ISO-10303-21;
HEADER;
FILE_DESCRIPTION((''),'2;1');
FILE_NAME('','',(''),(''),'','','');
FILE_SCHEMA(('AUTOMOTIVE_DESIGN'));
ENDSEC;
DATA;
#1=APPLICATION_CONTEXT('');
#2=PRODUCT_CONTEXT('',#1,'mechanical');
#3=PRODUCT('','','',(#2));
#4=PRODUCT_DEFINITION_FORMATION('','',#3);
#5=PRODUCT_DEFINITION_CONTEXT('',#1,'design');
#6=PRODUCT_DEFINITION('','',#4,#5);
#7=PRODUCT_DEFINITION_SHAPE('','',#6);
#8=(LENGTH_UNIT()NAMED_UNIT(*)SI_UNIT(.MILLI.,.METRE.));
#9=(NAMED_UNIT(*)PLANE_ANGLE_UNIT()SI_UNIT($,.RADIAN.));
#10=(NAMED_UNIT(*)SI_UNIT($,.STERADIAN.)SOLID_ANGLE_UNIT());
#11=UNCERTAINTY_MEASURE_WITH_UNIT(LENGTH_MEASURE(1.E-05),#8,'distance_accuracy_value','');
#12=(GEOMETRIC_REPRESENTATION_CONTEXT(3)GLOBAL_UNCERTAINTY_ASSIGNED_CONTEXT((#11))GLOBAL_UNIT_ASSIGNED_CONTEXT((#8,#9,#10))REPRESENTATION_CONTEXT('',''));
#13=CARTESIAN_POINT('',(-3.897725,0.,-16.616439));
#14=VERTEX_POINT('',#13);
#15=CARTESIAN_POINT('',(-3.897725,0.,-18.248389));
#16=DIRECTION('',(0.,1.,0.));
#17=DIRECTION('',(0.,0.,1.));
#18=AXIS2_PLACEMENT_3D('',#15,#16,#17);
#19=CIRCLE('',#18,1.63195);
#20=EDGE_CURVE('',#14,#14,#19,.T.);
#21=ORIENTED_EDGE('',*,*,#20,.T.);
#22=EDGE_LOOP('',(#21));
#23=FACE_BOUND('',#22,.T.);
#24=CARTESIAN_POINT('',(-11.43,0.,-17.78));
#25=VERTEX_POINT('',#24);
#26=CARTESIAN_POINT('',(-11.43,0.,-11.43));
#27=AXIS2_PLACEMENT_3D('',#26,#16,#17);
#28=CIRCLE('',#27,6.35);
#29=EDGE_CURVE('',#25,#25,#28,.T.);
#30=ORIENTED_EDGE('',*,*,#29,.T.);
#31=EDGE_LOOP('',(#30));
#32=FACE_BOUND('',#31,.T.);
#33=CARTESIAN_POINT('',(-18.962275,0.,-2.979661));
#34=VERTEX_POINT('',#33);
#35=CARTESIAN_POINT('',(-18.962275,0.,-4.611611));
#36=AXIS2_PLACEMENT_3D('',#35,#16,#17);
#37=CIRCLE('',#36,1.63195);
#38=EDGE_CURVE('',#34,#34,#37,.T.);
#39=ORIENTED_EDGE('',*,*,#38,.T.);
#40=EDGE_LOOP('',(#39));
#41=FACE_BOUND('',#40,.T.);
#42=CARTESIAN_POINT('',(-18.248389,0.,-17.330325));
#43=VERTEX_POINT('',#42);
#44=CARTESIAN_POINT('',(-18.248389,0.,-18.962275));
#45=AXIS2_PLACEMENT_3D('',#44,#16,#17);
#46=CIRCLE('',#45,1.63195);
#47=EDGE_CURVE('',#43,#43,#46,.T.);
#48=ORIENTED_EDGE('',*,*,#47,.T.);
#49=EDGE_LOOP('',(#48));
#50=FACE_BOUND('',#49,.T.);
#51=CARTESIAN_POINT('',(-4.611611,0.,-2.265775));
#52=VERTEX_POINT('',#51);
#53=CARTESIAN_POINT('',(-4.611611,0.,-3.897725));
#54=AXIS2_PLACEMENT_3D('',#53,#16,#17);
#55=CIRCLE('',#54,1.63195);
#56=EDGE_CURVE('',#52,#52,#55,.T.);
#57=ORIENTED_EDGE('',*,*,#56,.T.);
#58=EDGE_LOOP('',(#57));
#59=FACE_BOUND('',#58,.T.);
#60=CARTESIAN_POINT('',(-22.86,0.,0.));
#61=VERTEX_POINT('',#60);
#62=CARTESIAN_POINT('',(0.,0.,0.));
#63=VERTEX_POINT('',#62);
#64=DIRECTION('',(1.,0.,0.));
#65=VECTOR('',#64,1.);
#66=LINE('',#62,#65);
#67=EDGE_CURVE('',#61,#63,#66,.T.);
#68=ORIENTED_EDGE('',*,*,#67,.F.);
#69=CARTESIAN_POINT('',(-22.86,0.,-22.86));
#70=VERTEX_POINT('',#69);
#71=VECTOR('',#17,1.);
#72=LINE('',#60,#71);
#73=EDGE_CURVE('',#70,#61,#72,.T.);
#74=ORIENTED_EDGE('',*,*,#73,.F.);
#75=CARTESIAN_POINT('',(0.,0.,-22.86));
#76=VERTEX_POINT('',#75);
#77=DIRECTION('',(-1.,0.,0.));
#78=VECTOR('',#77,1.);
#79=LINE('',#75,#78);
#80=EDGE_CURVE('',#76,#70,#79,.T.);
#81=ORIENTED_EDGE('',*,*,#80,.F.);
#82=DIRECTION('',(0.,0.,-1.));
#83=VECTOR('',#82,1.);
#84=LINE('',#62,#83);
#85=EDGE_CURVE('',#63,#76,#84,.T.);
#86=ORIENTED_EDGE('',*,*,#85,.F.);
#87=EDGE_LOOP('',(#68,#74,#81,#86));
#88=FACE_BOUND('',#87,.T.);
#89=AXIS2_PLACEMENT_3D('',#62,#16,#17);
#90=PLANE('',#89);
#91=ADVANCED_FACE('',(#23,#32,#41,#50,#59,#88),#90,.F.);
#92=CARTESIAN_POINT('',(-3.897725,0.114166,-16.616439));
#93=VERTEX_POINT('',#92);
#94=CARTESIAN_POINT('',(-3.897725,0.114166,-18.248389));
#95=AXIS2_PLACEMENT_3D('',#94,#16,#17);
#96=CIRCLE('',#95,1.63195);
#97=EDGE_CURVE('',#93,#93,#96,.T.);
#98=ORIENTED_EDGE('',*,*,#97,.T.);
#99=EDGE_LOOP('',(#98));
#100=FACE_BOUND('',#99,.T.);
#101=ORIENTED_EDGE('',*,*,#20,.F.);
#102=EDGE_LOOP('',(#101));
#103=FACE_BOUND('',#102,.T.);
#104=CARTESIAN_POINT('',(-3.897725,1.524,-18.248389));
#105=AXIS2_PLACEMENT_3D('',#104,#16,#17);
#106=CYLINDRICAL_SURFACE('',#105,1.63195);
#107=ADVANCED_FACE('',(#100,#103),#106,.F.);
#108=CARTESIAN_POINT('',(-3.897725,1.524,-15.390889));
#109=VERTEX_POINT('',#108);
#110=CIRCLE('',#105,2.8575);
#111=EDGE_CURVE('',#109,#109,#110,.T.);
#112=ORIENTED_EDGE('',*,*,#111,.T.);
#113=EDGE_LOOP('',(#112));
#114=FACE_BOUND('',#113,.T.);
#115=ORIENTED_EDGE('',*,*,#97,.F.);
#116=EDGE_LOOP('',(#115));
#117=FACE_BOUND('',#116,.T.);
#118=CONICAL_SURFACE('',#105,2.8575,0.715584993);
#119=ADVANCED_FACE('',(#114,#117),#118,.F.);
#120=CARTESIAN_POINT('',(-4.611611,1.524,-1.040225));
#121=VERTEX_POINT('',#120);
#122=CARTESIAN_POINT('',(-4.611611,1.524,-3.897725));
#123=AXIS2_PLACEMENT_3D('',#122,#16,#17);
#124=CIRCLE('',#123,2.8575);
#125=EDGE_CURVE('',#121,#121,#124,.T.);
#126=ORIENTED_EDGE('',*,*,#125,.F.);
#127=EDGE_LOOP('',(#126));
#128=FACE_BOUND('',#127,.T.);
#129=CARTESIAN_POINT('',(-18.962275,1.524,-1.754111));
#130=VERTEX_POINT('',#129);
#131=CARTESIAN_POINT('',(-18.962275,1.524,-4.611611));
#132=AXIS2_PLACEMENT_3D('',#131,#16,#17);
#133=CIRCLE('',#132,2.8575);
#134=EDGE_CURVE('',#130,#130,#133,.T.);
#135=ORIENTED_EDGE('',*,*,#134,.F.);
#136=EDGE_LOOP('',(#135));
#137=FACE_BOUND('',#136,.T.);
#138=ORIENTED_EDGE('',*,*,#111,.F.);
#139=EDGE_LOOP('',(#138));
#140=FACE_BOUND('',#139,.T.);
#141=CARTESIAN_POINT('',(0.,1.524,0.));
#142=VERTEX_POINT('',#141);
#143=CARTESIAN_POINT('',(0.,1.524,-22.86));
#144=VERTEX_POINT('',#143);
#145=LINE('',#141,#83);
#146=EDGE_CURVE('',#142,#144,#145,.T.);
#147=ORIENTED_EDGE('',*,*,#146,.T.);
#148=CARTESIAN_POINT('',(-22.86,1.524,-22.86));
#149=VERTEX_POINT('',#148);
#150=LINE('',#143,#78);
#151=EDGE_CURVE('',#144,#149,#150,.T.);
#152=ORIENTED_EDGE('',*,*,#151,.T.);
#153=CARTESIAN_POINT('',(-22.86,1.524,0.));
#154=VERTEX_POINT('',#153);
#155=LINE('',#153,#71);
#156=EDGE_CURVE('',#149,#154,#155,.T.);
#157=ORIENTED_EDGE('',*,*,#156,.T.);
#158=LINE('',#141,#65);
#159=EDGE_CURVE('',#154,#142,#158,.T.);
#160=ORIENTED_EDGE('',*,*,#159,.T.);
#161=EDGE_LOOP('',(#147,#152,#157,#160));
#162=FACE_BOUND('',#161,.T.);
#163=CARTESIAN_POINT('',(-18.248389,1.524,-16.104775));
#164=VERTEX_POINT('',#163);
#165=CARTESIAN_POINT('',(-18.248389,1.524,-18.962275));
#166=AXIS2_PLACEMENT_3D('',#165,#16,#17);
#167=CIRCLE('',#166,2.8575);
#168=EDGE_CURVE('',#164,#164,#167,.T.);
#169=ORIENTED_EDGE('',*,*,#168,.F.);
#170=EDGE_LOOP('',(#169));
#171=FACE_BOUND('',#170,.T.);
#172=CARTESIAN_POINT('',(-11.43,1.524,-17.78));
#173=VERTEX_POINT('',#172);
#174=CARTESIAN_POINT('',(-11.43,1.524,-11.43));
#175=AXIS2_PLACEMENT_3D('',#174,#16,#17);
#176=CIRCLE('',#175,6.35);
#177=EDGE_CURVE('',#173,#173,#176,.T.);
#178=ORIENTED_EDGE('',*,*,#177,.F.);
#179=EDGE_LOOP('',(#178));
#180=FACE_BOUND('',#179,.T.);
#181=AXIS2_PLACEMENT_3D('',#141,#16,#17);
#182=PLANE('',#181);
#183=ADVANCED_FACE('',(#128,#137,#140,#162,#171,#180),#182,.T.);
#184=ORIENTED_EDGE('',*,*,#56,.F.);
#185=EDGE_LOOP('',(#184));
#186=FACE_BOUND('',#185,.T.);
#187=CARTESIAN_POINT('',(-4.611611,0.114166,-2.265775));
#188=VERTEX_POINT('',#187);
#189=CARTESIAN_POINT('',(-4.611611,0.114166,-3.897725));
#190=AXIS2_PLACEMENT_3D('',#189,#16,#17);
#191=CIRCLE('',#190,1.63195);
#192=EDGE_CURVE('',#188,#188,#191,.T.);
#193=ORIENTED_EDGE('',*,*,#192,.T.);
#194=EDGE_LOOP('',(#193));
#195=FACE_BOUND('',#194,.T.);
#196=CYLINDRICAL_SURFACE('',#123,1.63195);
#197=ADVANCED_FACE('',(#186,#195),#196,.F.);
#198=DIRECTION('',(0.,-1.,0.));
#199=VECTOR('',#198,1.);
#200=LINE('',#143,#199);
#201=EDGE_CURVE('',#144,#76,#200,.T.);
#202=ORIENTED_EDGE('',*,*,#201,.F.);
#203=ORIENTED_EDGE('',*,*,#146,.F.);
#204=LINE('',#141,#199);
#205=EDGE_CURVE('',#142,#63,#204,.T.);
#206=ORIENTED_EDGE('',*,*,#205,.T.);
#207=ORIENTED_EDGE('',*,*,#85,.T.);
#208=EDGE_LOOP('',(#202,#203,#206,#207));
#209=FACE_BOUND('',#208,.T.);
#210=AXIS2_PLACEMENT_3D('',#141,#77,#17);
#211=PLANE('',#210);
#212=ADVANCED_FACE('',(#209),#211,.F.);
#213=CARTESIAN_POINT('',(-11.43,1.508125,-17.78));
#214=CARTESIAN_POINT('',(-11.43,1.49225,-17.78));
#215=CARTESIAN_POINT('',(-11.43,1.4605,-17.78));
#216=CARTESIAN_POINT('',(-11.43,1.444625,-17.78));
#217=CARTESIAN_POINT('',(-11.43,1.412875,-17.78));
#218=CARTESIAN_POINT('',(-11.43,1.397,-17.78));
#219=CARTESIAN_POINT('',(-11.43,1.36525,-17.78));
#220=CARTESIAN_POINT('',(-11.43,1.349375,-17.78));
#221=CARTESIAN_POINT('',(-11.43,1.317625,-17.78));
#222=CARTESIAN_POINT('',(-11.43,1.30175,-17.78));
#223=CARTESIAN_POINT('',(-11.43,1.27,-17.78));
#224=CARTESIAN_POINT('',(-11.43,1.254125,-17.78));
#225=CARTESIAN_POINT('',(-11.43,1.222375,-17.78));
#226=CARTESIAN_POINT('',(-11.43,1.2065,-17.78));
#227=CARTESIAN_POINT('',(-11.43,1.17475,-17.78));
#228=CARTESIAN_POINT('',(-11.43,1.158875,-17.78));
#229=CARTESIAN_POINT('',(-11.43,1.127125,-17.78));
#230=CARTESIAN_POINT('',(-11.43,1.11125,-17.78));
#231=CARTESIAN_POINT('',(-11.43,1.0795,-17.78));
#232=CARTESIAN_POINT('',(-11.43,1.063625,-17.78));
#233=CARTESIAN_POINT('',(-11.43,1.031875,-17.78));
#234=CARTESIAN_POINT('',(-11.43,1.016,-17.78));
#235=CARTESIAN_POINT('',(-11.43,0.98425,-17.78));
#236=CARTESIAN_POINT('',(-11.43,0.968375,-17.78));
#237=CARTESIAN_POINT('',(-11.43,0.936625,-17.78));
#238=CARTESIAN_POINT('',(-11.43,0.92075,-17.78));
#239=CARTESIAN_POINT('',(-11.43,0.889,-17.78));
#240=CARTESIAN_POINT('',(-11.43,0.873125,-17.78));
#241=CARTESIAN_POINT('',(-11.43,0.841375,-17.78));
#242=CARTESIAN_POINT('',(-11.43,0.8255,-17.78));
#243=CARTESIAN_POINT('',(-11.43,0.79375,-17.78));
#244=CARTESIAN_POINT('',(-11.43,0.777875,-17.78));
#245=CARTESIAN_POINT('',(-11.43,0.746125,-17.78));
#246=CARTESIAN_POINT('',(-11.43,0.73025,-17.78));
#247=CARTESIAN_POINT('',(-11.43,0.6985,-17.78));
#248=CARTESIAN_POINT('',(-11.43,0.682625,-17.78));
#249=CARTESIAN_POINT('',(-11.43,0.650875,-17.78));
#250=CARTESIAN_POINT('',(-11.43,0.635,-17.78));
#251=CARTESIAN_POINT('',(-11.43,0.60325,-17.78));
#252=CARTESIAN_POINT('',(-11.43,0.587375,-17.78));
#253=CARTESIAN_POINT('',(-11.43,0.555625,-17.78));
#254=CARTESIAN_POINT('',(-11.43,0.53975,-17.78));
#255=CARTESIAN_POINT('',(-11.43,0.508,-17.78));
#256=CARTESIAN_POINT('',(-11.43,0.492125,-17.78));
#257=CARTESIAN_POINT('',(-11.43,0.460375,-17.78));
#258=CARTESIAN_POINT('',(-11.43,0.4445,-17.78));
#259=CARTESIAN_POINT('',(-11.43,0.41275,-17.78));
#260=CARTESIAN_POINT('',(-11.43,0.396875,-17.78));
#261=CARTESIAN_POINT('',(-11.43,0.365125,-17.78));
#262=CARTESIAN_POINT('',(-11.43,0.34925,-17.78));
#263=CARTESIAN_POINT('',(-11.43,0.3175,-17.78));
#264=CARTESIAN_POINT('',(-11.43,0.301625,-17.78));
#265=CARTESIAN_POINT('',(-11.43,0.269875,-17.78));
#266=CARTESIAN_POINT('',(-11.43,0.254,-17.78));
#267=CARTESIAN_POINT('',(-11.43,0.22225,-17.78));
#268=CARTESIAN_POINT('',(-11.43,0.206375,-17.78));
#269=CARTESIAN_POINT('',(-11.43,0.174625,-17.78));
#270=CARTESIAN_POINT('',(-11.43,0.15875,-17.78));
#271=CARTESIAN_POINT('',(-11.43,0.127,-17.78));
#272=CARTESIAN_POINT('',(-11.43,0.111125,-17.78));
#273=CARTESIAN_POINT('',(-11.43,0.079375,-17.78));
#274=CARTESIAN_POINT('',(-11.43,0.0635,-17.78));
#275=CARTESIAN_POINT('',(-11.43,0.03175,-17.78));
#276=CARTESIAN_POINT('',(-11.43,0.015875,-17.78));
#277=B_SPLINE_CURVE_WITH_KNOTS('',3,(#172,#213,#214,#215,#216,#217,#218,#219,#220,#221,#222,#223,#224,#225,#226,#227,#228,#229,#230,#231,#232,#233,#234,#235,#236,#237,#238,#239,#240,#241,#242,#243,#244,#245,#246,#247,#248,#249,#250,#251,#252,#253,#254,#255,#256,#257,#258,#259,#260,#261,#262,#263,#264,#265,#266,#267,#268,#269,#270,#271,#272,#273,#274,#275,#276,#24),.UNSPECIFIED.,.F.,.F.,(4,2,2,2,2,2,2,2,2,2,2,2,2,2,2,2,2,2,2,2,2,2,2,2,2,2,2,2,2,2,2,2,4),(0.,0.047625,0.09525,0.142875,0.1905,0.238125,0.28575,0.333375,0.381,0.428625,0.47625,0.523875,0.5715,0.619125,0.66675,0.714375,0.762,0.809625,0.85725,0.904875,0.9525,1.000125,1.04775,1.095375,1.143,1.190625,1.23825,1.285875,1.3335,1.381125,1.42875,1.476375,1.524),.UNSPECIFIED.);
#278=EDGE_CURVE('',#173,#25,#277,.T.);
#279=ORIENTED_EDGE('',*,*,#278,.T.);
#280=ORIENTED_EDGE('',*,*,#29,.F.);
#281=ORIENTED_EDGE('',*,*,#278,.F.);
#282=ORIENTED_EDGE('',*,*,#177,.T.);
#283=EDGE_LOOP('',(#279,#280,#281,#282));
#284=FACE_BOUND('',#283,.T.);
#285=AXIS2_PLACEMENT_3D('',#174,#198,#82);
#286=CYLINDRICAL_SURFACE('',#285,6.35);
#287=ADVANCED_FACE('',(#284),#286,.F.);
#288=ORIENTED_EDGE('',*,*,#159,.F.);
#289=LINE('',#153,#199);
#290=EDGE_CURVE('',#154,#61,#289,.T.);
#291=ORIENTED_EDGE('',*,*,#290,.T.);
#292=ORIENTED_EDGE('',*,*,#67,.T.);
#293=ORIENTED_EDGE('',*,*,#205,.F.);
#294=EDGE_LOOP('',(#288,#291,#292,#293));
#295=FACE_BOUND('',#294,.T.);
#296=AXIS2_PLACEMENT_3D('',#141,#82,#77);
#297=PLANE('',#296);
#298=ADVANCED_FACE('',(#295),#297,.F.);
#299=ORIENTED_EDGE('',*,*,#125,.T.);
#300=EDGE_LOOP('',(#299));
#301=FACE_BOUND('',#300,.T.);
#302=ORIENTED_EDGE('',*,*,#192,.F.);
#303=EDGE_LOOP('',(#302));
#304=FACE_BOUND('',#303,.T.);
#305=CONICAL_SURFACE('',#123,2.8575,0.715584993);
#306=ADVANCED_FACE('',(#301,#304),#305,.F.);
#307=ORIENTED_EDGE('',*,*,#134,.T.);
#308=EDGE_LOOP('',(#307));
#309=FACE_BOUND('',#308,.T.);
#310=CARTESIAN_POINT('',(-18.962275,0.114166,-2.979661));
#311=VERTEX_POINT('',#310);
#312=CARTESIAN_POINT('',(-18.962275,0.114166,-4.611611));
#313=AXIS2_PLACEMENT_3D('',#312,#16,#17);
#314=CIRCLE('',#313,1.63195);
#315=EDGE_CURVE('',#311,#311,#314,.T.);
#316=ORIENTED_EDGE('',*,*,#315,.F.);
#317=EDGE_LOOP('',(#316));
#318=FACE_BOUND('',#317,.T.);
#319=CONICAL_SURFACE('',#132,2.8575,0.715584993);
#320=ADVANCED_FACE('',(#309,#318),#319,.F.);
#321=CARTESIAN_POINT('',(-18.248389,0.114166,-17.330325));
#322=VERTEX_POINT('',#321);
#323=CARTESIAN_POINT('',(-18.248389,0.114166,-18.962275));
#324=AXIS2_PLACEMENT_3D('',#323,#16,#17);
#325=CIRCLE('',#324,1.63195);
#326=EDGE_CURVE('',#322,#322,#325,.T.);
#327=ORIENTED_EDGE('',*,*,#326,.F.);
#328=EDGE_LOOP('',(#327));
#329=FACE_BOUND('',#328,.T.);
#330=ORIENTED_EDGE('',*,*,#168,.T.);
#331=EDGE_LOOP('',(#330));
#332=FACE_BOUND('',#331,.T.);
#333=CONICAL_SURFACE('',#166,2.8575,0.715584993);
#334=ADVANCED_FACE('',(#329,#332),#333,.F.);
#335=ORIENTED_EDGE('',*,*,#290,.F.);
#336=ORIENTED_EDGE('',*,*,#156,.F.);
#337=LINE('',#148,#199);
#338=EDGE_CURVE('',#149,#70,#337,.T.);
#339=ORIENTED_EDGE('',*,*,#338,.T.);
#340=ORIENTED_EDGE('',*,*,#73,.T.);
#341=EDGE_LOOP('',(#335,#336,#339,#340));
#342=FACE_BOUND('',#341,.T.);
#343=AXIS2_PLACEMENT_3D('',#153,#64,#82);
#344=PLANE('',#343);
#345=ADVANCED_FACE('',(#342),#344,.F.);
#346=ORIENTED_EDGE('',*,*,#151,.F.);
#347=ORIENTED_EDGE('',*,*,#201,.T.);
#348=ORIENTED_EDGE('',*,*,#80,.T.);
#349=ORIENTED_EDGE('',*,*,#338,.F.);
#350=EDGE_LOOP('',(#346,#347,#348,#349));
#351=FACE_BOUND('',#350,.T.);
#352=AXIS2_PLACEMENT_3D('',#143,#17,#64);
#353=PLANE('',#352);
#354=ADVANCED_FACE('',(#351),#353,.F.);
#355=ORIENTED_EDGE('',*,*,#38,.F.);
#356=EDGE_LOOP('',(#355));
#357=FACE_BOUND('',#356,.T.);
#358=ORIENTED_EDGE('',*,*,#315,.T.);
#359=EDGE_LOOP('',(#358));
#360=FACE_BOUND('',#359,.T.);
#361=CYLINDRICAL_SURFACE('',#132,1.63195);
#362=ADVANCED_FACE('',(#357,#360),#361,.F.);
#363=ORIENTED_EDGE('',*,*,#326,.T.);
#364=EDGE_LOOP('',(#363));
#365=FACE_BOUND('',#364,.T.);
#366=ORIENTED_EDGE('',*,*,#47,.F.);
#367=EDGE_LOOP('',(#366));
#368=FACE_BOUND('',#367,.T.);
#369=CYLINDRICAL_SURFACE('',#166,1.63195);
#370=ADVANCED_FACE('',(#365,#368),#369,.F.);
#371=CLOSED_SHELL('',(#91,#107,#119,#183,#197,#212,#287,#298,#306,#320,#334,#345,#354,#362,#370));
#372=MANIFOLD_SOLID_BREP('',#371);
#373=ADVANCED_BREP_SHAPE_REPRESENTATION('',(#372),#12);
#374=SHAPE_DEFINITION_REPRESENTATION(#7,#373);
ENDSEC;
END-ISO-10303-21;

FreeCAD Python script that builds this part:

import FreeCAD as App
import Part
import Sketcher

V = App.Vector
Q = App.Units.Quantity


def add_polygon(sketch, points):
    """Adds a closed chain of lines whose ends are joined by coincident constraints."""
    first, n = sketch.GeometryCount, len(points)
    for a, b in zip(points, points[1:] + points[:1]):
        sketch.addGeometry(Part.LineSegment(App.Vector(*a, 0), App.Vector(*b, 0)), False)
    for i in range(n):
        sketch.addConstraint(Sketcher.Constraint("Coincident", first + i, 2, first + (i + 1) % n, 1))

doc = App.newDocument("Part")
body = doc.addObject("PartDesign::Body", "Body")

sketch1 = body.newObject("Sketcher::SketchObject", "Sketch")
sketch1.AttachmentSupport = (doc.getObject("XZ_Plane"), [""])
sketch1.MapMode = "FlatFace"
add_polygon(sketch1, [(-23, -23), (-23, 0), (0, 0), (0, -23)])
sketch1.addGeometry(Part.Circle(V(-11, -11, 0), V(0, 0, 1), 6), False)
sketch1.addConstraint(Sketcher.Constraint("Vertical", 0))
sketch1.addConstraint(Sketcher.Constraint("Horizontal", 1))
sketch1.addConstraint(Sketcher.Constraint("Vertical", 2))
sketch1.addConstraint(Sketcher.Constraint("Horizontal", 3))
sketch1.addConstraint(Sketcher.Constraint("Coincident", 1, 2, -1, 1))
sketch1.addConstraint(Sketcher.Constraint("Equal", 3, 0))
sketch1.addConstraint(Sketcher.Constraint("Diameter", 4, Q("0.5 in")))
sketch1.addConstraint(Sketcher.Constraint("DistanceX", 1, 1, 1, 2, Q("0.9 in")))
sketch1.addConstraint(Sketcher.Constraint("DistanceX", 4, 3, -1, 1, Q("0.45 in")))
sketch1.addConstraint(Sketcher.Constraint("DistanceY", 4, 3, -1, 1, Q("0.45 in")))
pad1 = body.newObject("PartDesign::Pad", "Pad")
pad1.Profile = sketch1
pad1.Length = Q("0.06 in")
pad1.Reversed = True

sketch2 = body.newObject("Sketcher::SketchObject", "Sketch001")
sketch2.AttachmentSupport = (doc.getObject("YZ_Plane"), [""])
sketch2.MapMode = "FlatFace"
sketch2.AttachmentOffset = App.Placement(V(0, 0, -3.897725), App.Rotation())
add_polygon(sketch2, [(0, -18.25), (1.52, -18.25), (1.52, -15.39), (0.11, -16.62), (0, -16.62)])
sketch2.addGeometry(Part.LineSegment(V(1.52, -18.25, 0), V(0, -18.25, 0)), True)
sketch2.addConstraint(Sketcher.Constraint("Horizontal", 0))
sketch2.addConstraint(Sketcher.Constraint("Vertical", 1))
sketch2.addConstraint(Sketcher.Constraint("Horizontal", 3))
sketch2.addConstraint(Sketcher.Constraint("Vertical", 4))
sketch2.addConstraint(Sketcher.Constraint("Horizontal", 5))
sketch2.addConstraint(Sketcher.Constraint("Coincident", 5, 1, 0, 2))
sketch2.addConstraint(Sketcher.Constraint("PointOnObject", 3, 2, -2))
sketch2.addConstraint(Sketcher.Constraint("PointOnObject", 5, 2, -2))
sketch2.addConstraint(Sketcher.Constraint("Angle", 2, Q("-139 deg")))
sketch2.addConstraint(Sketcher.Constraint("DistanceX", 0, 1, 0, 2, Q("0.06 in")))
sketch2.addConstraint(Sketcher.Constraint("DistanceY", 1, 1, 1, 2, Q("0.1125 in")))
sketch2.addConstraint(Sketcher.Constraint("DistanceY", 4, 2, 4, 1, Q("1.63195 mm")))
sketch2.addConstraint(Sketcher.Constraint("DistanceY", 0, 2, -1, 1, Q("18.248389 mm")))
groove = body.newObject("PartDesign::Groove", "Groove")
groove.Profile = sketch2
groove.ReferenceAxis = (sketch2, ["Axis0"])
groove.Angle = 360
doc.recompute()

datumline = body.newObject("PartDesign::Line", "DatumLine")
datumline.Placement = App.Placement(V(0, 0, 0), App.Rotation(V(0, 0, 1), V(-0.049684439, 0, 0.998764966)))
linearpattern = body.newObject("PartDesign::LinearPattern", "LinearPattern")
linearpattern.Originals = [groove]
linearpattern.Direction = (datumline, [""])
linearpattern.Mode = "offset"
linearpattern.Offset = 14.36841
linearpattern.Occurrences = 2
body.Tip = linearpattern
doc.recompute()

datumline2 = body.newObject("PartDesign::Line", "DatumLine001")
datumline2.Placement = App.Placement(V(0, 0, 0), App.Rotation(V(0, 0, 1), V(-0.741365684, 0, 0.671101276)))
linearpattern2 = body.newObject("PartDesign::LinearPattern", "LinearPattern001")
linearpattern2.Originals = [groove]
linearpattern2.Direction = (datumline2, [""])
linearpattern2.Mode = "offset"
linearpattern2.Offset = Q("0.8 in")
linearpattern2.Occurrences = 2
body.Tip = linearpattern2
doc.recompute()

datumline3 = body.newObject("PartDesign::Line", "DatumLine002")
datumline3.Placement = App.Placement(V(0, 0, 0), App.Rotation(V(0, 0, 1), V(-0.998764966, 0, -0.049684439)))
linearpattern3 = body.newObject("PartDesign::LinearPattern", "LinearPattern002")
linearpattern3.Originals = [groove]
linearpattern3.Direction = (datumline3, [""])
linearpattern3.Mode = "offset"
linearpattern3.Offset = 14.36841
linearpattern3.Occurrences = 2
body.Tip = linearpattern3

doc.recompute()
